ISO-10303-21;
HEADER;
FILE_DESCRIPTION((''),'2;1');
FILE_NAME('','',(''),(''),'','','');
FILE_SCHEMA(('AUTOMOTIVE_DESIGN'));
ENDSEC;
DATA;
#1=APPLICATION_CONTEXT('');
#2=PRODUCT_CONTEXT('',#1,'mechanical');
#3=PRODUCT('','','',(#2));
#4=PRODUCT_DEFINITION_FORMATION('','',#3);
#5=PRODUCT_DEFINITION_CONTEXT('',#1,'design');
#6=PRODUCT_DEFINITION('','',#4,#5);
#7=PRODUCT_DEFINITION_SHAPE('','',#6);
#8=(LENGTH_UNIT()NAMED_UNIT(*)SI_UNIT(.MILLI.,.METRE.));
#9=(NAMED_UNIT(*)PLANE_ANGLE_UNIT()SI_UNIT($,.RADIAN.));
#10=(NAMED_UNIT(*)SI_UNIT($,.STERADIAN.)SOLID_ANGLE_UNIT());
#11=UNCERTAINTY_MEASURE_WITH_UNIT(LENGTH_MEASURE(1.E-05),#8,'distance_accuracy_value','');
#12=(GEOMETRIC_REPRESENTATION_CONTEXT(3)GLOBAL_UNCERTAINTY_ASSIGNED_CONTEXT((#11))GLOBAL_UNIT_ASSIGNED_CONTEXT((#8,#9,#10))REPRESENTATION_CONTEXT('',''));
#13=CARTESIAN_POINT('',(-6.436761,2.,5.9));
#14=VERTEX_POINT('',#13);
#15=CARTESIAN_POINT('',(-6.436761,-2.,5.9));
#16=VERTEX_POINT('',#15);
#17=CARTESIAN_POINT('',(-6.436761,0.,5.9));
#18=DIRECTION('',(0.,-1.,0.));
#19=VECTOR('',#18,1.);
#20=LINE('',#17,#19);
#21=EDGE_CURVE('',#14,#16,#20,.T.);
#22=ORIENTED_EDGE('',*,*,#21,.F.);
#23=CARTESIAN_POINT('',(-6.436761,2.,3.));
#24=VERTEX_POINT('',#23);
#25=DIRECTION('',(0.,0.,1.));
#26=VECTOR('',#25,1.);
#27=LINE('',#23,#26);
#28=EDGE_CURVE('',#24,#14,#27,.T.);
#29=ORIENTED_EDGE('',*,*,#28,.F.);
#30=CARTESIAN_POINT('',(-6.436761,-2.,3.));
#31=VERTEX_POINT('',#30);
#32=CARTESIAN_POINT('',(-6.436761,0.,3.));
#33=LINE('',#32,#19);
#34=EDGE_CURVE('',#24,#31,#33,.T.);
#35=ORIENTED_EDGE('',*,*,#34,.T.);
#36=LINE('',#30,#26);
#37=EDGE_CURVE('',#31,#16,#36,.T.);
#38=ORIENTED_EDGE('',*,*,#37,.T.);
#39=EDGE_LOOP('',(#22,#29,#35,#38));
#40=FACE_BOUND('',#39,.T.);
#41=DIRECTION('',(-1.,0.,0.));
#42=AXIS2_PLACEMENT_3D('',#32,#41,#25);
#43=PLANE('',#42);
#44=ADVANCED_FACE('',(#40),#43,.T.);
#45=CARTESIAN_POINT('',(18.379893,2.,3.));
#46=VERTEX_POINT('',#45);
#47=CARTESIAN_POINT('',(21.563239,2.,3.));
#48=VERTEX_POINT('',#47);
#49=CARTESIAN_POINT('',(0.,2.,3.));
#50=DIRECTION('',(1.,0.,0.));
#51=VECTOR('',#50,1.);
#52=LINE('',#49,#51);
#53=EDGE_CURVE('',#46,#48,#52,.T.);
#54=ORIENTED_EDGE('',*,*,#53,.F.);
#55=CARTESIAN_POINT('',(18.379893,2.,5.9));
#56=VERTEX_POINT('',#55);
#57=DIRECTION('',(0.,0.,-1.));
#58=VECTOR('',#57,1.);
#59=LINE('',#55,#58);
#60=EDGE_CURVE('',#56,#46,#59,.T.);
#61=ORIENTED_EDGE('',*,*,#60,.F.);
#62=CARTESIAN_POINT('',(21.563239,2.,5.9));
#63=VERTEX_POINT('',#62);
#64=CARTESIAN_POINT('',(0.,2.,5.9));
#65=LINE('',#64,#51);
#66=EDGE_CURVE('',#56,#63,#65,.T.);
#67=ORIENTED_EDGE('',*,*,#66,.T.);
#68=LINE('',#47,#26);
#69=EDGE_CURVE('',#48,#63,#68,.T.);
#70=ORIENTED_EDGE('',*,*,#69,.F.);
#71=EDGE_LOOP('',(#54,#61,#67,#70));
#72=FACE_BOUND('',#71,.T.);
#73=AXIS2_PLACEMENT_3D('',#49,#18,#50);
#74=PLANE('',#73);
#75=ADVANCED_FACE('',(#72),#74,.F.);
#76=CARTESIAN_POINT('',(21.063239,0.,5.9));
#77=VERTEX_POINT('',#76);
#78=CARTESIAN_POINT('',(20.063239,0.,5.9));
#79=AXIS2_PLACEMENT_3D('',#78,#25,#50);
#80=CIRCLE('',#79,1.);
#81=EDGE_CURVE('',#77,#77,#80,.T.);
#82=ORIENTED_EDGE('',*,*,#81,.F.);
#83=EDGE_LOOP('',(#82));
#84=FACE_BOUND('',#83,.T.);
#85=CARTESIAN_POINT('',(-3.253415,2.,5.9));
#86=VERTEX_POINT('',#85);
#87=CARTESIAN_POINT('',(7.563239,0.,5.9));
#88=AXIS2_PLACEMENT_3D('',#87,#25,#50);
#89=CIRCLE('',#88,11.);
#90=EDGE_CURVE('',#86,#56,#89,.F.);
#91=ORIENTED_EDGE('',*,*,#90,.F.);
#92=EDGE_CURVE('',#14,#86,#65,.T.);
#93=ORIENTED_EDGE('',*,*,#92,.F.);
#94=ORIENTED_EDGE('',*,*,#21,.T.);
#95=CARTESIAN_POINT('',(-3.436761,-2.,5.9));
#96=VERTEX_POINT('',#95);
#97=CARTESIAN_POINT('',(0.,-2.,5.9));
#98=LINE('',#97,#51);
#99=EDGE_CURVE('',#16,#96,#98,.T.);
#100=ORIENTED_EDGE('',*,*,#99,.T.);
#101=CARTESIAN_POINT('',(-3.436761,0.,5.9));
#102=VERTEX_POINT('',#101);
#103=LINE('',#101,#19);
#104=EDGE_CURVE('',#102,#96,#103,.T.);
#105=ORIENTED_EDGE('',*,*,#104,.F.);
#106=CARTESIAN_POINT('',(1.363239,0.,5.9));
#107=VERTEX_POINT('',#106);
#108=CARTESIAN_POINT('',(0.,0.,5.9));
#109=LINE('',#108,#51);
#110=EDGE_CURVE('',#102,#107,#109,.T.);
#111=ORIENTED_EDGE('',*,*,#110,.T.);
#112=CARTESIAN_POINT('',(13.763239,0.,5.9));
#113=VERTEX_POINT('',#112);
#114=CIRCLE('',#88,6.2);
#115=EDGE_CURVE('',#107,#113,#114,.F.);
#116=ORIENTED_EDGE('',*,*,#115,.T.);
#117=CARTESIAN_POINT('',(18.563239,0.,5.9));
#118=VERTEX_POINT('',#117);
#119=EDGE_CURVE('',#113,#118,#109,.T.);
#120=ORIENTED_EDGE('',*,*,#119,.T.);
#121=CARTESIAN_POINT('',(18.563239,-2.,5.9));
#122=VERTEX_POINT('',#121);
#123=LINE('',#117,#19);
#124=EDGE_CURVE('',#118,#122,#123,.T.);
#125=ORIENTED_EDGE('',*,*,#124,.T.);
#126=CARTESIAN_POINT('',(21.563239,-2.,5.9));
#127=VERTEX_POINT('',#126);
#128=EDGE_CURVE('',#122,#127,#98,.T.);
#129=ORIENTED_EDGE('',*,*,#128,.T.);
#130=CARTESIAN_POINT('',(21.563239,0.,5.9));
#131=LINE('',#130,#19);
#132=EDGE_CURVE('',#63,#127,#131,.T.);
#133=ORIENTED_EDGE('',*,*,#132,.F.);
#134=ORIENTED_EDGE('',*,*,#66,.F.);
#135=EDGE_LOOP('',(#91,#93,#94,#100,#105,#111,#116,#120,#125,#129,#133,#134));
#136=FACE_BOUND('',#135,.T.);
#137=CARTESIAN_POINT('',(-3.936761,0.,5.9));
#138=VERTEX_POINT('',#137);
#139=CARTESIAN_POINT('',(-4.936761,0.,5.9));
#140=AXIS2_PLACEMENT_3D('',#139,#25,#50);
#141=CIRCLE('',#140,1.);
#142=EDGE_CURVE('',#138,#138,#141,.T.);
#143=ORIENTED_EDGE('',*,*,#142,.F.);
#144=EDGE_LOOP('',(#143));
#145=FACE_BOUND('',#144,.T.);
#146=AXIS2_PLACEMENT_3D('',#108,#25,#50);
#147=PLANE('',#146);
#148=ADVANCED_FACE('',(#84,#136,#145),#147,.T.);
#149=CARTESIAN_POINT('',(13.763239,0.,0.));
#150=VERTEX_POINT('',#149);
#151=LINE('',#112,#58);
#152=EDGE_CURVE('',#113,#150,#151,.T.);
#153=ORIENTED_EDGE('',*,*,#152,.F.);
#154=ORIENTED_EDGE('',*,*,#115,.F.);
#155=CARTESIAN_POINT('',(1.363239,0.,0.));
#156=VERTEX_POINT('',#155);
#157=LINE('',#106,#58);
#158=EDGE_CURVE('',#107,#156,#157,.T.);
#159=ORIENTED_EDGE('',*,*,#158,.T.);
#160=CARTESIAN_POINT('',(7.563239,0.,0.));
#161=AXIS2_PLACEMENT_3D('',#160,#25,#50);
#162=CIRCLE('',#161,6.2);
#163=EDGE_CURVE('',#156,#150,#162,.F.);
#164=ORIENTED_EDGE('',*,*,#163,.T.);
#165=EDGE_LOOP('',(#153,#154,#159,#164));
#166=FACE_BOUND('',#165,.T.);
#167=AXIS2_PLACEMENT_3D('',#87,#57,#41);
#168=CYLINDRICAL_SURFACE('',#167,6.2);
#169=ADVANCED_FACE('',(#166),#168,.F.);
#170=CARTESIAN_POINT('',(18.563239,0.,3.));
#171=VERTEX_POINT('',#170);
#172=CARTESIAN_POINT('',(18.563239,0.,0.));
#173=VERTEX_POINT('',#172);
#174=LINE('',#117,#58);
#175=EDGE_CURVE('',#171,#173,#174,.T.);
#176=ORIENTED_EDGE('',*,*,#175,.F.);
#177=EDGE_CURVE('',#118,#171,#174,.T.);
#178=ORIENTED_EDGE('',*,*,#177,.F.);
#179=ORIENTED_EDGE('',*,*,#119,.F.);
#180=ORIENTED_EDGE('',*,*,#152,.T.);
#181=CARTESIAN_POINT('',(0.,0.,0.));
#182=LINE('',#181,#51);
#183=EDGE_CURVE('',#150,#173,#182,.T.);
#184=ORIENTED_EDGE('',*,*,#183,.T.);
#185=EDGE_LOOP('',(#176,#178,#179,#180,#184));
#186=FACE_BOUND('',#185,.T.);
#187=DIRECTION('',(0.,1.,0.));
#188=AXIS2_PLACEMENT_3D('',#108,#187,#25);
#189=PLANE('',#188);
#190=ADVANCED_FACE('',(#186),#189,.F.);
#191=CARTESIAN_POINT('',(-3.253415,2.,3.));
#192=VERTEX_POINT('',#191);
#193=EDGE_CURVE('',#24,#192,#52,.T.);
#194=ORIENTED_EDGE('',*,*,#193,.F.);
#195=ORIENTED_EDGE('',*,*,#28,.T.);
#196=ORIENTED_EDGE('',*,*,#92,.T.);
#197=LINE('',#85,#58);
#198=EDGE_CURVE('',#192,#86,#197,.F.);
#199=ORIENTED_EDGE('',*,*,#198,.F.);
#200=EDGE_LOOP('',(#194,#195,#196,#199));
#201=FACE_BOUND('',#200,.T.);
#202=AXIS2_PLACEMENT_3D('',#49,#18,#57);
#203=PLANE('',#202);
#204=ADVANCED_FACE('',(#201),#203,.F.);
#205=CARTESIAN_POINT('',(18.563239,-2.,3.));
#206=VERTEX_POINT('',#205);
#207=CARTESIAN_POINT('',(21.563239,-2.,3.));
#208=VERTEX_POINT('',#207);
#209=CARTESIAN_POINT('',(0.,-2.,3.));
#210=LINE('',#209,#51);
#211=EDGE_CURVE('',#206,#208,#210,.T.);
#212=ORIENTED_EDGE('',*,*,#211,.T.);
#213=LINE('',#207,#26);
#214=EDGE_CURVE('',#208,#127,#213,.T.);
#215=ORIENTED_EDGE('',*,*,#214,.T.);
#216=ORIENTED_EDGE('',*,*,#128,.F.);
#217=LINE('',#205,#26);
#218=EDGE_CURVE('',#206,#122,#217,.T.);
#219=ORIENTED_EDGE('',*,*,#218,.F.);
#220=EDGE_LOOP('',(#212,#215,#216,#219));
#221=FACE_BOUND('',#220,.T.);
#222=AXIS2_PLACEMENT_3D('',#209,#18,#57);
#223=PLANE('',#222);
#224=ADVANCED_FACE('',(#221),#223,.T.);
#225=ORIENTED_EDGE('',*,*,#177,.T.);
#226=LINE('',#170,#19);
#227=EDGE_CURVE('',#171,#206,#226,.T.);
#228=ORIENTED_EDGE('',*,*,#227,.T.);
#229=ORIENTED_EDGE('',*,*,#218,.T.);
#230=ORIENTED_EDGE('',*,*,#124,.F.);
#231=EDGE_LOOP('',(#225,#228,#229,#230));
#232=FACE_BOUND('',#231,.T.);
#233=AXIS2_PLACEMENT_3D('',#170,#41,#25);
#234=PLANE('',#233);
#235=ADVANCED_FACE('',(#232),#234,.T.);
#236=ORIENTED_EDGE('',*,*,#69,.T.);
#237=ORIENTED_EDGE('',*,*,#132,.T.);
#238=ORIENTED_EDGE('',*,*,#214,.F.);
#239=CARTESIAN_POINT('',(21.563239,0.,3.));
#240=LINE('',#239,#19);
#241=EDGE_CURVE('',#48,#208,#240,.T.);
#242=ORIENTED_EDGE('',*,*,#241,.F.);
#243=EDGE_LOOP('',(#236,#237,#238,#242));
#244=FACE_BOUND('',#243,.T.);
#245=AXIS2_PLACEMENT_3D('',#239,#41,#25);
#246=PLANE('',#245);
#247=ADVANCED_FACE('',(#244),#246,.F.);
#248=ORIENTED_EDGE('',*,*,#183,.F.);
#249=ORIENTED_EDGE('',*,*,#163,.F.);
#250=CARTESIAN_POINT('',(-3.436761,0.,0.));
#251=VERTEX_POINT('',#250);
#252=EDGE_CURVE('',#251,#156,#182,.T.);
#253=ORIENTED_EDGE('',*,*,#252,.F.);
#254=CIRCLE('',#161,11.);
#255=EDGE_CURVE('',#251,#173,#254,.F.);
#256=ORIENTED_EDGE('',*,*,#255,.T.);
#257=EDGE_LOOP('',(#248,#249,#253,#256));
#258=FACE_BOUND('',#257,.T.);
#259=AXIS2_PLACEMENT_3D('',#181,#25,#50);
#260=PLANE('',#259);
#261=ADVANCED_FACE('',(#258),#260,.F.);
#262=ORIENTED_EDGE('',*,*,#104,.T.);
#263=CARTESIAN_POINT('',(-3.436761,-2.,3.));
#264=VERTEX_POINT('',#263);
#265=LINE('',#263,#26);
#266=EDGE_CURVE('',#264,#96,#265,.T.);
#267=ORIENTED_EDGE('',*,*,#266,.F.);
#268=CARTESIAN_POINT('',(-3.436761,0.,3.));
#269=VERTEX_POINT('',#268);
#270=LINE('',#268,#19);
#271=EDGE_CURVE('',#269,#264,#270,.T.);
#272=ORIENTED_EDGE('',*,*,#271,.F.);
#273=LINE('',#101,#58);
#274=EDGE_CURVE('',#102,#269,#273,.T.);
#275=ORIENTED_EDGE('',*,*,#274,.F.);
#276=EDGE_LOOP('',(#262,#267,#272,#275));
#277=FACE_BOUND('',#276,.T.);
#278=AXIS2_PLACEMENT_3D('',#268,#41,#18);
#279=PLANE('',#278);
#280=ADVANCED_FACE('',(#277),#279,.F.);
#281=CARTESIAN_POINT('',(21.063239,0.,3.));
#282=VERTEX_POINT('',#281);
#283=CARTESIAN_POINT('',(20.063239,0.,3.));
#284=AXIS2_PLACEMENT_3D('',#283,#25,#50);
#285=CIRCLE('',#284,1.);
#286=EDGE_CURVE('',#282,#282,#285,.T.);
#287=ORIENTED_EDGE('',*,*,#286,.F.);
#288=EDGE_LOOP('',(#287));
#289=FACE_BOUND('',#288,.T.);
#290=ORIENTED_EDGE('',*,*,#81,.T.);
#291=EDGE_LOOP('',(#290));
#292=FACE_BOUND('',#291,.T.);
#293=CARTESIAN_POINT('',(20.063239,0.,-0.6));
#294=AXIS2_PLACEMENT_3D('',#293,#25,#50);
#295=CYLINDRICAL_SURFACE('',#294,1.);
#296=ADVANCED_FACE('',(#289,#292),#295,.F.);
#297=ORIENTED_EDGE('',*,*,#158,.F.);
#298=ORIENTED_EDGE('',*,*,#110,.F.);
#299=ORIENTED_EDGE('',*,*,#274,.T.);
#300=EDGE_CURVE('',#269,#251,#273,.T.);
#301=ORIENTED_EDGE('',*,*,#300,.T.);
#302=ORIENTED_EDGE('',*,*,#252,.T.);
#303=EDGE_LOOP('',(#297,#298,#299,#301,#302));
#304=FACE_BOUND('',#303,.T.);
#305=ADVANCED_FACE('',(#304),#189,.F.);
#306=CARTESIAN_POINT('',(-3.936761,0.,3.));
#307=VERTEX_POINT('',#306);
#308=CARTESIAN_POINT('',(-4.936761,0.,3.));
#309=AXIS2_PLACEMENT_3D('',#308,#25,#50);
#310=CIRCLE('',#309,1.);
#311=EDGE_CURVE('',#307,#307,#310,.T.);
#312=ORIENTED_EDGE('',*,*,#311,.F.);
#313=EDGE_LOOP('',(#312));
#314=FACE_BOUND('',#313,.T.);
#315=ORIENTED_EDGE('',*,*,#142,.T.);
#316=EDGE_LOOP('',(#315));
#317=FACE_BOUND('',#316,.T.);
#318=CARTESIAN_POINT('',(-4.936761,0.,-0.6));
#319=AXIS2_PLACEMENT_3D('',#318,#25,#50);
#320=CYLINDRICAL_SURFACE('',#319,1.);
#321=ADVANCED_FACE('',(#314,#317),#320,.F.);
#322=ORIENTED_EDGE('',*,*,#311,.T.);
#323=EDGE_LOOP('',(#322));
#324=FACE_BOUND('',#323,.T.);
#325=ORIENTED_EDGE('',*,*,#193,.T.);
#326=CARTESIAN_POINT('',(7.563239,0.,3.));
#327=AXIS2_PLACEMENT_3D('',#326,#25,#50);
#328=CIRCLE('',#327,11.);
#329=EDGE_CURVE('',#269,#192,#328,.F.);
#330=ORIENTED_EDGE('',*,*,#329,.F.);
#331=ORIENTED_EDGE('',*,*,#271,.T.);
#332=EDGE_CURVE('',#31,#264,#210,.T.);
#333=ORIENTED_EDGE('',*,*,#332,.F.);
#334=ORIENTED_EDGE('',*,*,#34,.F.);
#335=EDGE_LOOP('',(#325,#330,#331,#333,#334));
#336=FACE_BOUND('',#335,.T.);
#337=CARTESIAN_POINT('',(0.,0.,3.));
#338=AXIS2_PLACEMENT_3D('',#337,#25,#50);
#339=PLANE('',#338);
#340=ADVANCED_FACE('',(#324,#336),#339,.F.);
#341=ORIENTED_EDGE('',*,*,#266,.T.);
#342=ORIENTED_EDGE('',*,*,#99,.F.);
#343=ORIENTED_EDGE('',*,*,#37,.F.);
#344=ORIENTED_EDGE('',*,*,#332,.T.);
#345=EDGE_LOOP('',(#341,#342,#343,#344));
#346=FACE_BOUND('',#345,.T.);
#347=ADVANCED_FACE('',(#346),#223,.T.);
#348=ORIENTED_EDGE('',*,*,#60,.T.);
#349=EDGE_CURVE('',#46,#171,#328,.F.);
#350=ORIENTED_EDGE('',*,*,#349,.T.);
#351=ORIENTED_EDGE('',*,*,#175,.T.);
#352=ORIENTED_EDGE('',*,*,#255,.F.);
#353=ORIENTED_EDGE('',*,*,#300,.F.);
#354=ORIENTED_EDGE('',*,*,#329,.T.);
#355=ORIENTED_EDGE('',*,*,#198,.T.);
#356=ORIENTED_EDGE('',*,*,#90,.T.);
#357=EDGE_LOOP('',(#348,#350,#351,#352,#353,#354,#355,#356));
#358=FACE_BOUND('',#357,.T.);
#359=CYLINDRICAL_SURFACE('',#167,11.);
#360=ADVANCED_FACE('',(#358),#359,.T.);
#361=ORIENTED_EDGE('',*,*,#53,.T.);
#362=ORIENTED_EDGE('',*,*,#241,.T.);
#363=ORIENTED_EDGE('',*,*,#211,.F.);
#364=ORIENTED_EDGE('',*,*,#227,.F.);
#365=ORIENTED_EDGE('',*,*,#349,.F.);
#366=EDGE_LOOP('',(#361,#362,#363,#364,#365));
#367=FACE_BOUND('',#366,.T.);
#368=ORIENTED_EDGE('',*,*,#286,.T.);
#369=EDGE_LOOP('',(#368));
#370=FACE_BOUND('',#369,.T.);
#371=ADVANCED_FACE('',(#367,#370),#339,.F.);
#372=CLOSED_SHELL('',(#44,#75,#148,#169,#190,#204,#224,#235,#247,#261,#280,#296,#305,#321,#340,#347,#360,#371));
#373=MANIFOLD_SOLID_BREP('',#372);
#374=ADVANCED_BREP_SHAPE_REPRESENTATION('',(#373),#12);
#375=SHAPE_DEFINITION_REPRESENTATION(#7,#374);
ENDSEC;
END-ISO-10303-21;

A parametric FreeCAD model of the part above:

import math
import FreeCAD as App
import Part
import Sketcher

doc = App.newDocument("Part")
params = doc.addObject("Spreadsheet::Sheet", "Params")
for row, (alias, value) in enumerate([
    ("sketch1_radius", "11 mm"),
    ("sketch1_radius2", "6.2 mm"),
    ("pad1_length", "5.9 mm"),
    ("sketch2_width", "3 mm"),
    ("sketch2_height", "4 mm"),
    ("pad2_length", "2.9 mm"),
    ("sketch3_diameter", "2 mm"),
    ("pocket1_length", "6.5 mm"),
], start=1):
    params.set(f"A{row}", alias)
    params.set(f"B{row}", "=" + value)
    params.setAlias(f"B{row}", alias)

body = doc.addObject("PartDesign::Body", "Body")

# Sketch on XY plane
sketch1 = doc.addObject("Sketcher::SketchObject", "Sketch")
body.addObject(sketch1)
sketch1.AttachmentSupport = (doc.XY_Plane, [""])
sketch1.MapMode = "FlatFace"
sketch1.addGeometry(Part.ArcOfCircle(Part.Circle(App.Vector(7.6, 0, 0), App.Vector(0, 0, 1), 11), math.radians(0), math.radians(180)), False)
sketch1.addGeometry(Part.LineSegment(App.Vector(-3.4, 0, 0), App.Vector(1.4, 0, 0)), False)
sketch1.addGeometry(Part.ArcOfCircle(Part.Circle(App.Vector(7.6, 0, 0), App.Vector(0, 0, 1), 6.2), math.radians(0), math.radians(180)), False)
sketch1.addGeometry(Part.LineSegment(App.Vector(13.8, 0, 0), App.Vector(18.6, 0, 0)), False)
sketch1.addConstraint(Sketcher.Constraint("Coincident", 0, 2, 1, 1))
sketch1.addConstraint(Sketcher.Constraint("Coincident", 1, 2, 2, 2))
sketch1.addConstraint(Sketcher.Constraint("Coincident", 2, 1, 3, 1))
sketch1.addConstraint(Sketcher.Constraint("Coincident", 3, 2, 0, 1))
sketch1.addConstraint(Sketcher.Constraint("Horizontal", 1))
sketch1.addConstraint(Sketcher.Constraint("Horizontal", 3))
sketch1.addConstraint(Sketcher.Constraint("Coincident", 2, 3, 0, 3))
sketch1.addConstraint(Sketcher.Constraint("PointOnObject", 0, 3, -1))
sketch1.addConstraint(Sketcher.Constraint("PointOnObject", 0, 2, -1))
sketch1.addConstraint(Sketcher.Constraint("PointOnObject", 2, 1, -1))
sketch1.addConstraint(Sketcher.Constraint("Radius", 0, 11.0))
sketch1.addConstraint(Sketcher.Constraint("Radius", 2, 6.2))
sketch1.addConstraint(Sketcher.Constraint("DistanceX", -1, 1, 0, 3, 7.563239))
sketch1.setExpression("Constraints[10]", "Params.sketch1_radius")
sketch1.setExpression("Constraints[11]", "Params.sketch1_radius2")
pad1 = doc.addObject("PartDesign::Pad", "Pad")
body.addObject(pad1)
pad1.Profile = sketch1
pad1.setExpression("Length", "Params.pad1_length")

# Sketch on XY plane
sketch2 = doc.addObject("Sketcher::SketchObject", "Sketch001")
body.addObject(sketch2)
sketch2.AttachmentSupport = (doc.XY_Plane, [""])
sketch2.MapMode = "FlatFace"
sketch2.AttachmentOffset = App.Placement(App.Vector(0, 0, 5.9), App.Rotation())
sketch2.addGeometry(Part.LineSegment(App.Vector(-6.4, 2, 0), App.Vector(-6.4, -2, 0)), False)
sketch2.addGeometry(Part.LineSegment(App.Vector(-6.4, -2, 0), App.Vector(-3.4, -2, 0)), False)
sketch2.addGeometry(Part.LineSegment(App.Vector(-3.4, -2, 0), App.Vector(-3.4, 0, 0)), False)
sketch2.addGeometry(Part.LineSegment(App.Vector(-3.4, 0, 0), App.Vector(-0.4, 0, 0)), False)
sketch2.addGeometry(Part.LineSegment(App.Vector(-0.4, 0, 0), App.Vector(-0.4, 2, 0)), False)
sketch2.addGeometry(Part.LineSegment(App.Vector(-0.4, 2, 0), App.Vector(-6.4, 2, 0)), False)
sketch2.addGeometry(Part.LineSegment(App.Vector(18.6, 0, 0), App.Vector(18.6, -2, 0)), False)
sketch2.addGeometry(Part.LineSegment(App.Vector(18.6, -2, 0), App.Vector(21.6, -2, 0)), False)
sketch2.addGeometry(Part.LineSegment(App.Vector(21.6, -2, 0), App.Vector(21.6, 2, 0)), False)
sketch2.addGeometry(Part.LineSegment(App.Vector(21.6, 2, 0), App.Vector(15.6, 2, 0)), False)
sketch2.addGeometry(Part.LineSegment(App.Vector(15.6, 2, 0), App.Vector(15.6, 0, 0)), False)
sketch2.addGeometry(Part.LineSegment(App.Vector(15.6, 0, 0), App.Vector(18.6, 0, 0)), False)
sketch2.addConstraint(Sketcher.Constraint("Coincident", 0, 2, 1, 1))
sketch2.addConstraint(Sketcher.Constraint("Coincident", 1, 2, 2, 1))
sketch2.addConstraint(Sketcher.Constraint("Coincident", 2, 2, 3, 1))
sketch2.addConstraint(Sketcher.Constraint("Coincident", 3, 2, 4, 1))
sketch2.addConstraint(Sketcher.Constraint("Coincident", 4, 2, 5, 1))
sketch2.addConstraint(Sketcher.Constraint("Coincident", 5, 2, 0, 1))
sketch2.addConstraint(Sketcher.Constraint("Coincident", 6, 2, 7, 1))
sketch2.addConstraint(Sketcher.Constraint("Coincident", 7, 2, 8, 1))
sketch2.addConstraint(Sketcher.Constraint("Coincident", 8, 2, 9, 1))
sketch2.addConstraint(Sketcher.Constraint("Coincident", 9, 2, 10, 1))
sketch2.addConstraint(Sketcher.Constraint("Coincident", 10, 2, 11, 1))
sketch2.addConstraint(Sketcher.Constraint("Coincident", 11, 2, 6, 1))
sketch2.addConstraint(Sketcher.Constraint("Vertical", 0))
sketch2.addConstraint(Sketcher.Constraint("Horizontal", 1))
sketch2.addConstraint(Sketcher.Constraint("Vertical", 2))
sketch2.addConstraint(Sketcher.Constraint("Horizontal", 3))
sketch2.addConstraint(Sketcher.Constraint("Vertical", 4))
sketch2.addConstraint(Sketcher.Constraint("Horizontal", 5))
sketch2.addConstraint(Sketcher.Constraint("Vertical", 6))
sketch2.addConstraint(Sketcher.Constraint("Horizontal", 7))
sketch2.addConstraint(Sketcher.Constraint("Vertical", 8))
sketch2.addConstraint(Sketcher.Constraint("Horizontal", 9))
sketch2.addConstraint(Sketcher.Constraint("Vertical", 10))
sketch2.addConstraint(Sketcher.Constraint("Horizontal", 11))
sketch2.addConstraint(Sketcher.Constraint("PointOnObject", 2, 2, -1))
sketch2.addConstraint(Sketcher.Constraint("PointOnObject", 10, 2, -1))
sketch2.addConstraint(Sketcher.Constraint("Horizontal", 1, 2, 6, 2))
sketch2.addConstraint(Sketcher.Constraint("Horizontal", 5, 2, 8, 2))
sketch2.addConstraint(Sketcher.Constraint("Equal", 1, 3))
sketch2.addConstraint(Sketcher.Constraint("Equal", 3, 7))
sketch2.addConstraint(Sketcher.Constraint("Equal", 5, 9))
sketch2.addConstraint(Sketcher.Constraint("Equal", 2, 4))
sketch2.addConstraint(Sketcher.Constraint("DistanceX", 1, 1, 1, 2, 3.0))
sketch2.addConstraint(Sketcher.Constraint("DistanceY", 0, 2, 0, 1, 4.0))
sketch2.addConstraint(Sketcher.Constraint("DistanceX", 3, 2, 6, 2, 19.0))
sketch2.addConstraint(Sketcher.Constraint("DistanceX", 0, 2, -1, 1, 6.436761))
sketch2.setExpression("Constraints[32]", "Params.sketch2_width")
sketch2.setExpression("Constraints[33]", "Params.sketch2_height")
pad2 = doc.addObject("PartDesign::Pad", "Pad001")
body.addObject(pad2)
pad2.Profile = sketch2
pad2.setExpression("Length", "Params.pad2_length")
pad2.Reversed = True

# Sketch on XY plane
sketch3 = doc.addObject("Sketcher::SketchObject", "Sketch002")
body.addObject(sketch3)
sketch3.AttachmentSupport = (doc.XY_Plane, [""])
sketch3.MapMode = "FlatFace"
sketch3.AttachmentOffset = App.Placement(App.Vector(0, 0, 5.9), App.Rotation())
sketch3.addGeometry(Part.Circle(App.Vector(20.1, 0, 0), App.Vector(0, 0, 1), 1), False)
sketch3.addGeometry(Part.Circle(App.Vector(-4.9, 0, 0), App.Vector(0, 0, 1), 1), False)
sketch3.addConstraint(Sketcher.Constraint("Equal", 0, 1))
sketch3.addConstraint(Sketcher.Constraint("PointOnObject", 0, 3, -1))
sketch3.addConstraint(Sketcher.Constraint("PointOnObject", 1, 3, -1))
sketch3.addConstraint(Sketcher.Constraint("Diameter", 0, 2.0))
sketch3.addConstraint(Sketcher.Constraint("DistanceX", 1, 3, 0, 3, 25.0))
sketch3.addConstraint(Sketcher.Constraint("DistanceX", -1, 1, 0, 3, 20.063239))
sketch3.setExpression("Constraints[3]", "Params.sketch3_diameter")
pocket1 = doc.addObject("PartDesign::Pocket", "Pocket")
body.addObject(pocket1)
pocket1.Profile = sketch3
pocket1.setExpression("Length", "Params.pocket1_length")

doc.recompute()
